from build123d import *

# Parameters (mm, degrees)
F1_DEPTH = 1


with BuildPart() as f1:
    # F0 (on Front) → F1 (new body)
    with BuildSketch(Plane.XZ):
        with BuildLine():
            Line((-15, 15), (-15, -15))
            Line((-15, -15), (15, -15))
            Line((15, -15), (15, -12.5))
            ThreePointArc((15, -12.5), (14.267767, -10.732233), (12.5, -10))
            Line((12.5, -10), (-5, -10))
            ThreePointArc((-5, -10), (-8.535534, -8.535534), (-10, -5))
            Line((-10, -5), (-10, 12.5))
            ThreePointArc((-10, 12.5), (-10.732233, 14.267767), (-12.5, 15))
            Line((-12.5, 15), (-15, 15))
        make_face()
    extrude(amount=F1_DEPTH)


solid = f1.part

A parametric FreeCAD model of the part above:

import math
import FreeCAD as App
import Part
import Sketcher
Q = App.Units.Quantity

doc = App.newDocument("Part")
body = doc.addObject("PartDesign::Body", "Body")

# Sketch on XZ plane
sketch1 = body.newObject("Sketcher::SketchObject", "Sketch")
sketch1.AttachmentSupport = (doc.getObject("XZ_Plane"), [""])
sketch1.MapMode = "FlatFace"
sketch1.addGeometry(Part.LineSegment(App.Vector(-15, 15, 0), App.Vector(-15, -15, 0)), False)
sketch1.addGeometry(Part.LineSegment(App.Vector(-15, -15, 0), App.Vector(15, -15, 0)), False)
sketch1.addGeometry(Part.LineSegment(App.Vector(15, -15, 0), App.Vector(15, -12.5, 0)), False)
sketch1.addGeometry(Part.ArcOfCircle(Part.Circle(App.Vector(12.5, -12.5, 0), App.Vector(0, 0, 1), 2.5), math.radians(-0.000004), math.radians(90.000004)), False)
sketch1.addGeometry(Part.LineSegment(App.Vector(12.5, -10, 0), App.Vector(-5, -10, 0)), False)
sketch1.addGeometry(Part.ArcOfCircle(Part.Circle(App.Vector(-5, -5, 0), App.Vector(0, 0, 1), 5), math.radians(179.999996), math.radians(270.000004)), False)
sketch1.addGeometry(Part.LineSegment(App.Vector(-10, -5, 0), App.Vector(-10, 12.5, 0)), False)
sketch1.addGeometry(Part.ArcOfCircle(Part.Circle(App.Vector(-12.5, 12.5, 0), App.Vector(0, 0, 1), 2.5), math.radians(-0.000004), math.radians(90.000004)), False)
sketch1.addGeometry(Part.LineSegment(App.Vector(-12.5, 15, 0), App.Vector(-15, 15, 0)), False)
sketch1.addConstraint(Sketcher.Constraint("Coincident", 0, 2, 1, 1))
sketch1.addConstraint(Sketcher.Constraint("Coincident", 1, 2, 2, 1))
sketch1.addConstraint(Sketcher.Constraint("Tangent", 2, 2, 3, 1))
sketch1.addConstraint(Sketcher.Constraint("Tangent", 3, 2, 4, 1))
sketch1.addConstraint(Sketcher.Constraint("Tangent", 4, 2, 5, 2))
sketch1.addConstraint(Sketcher.Constraint("Tangent", 5, 1, 6, 1))
sketch1.addConstraint(Sketcher.Constraint("Tangent", 6, 2, 7, 1))
sketch1.addConstraint(Sketcher.Constraint("Tangent", 7, 2, 8, 1))
sketch1.addConstraint(Sketcher.Constraint("Coincident", 8, 2, 0, 1))
sketch1.addConstraint(Sketcher.Constraint("Vertical", 0))
sketch1.addConstraint(Sketcher.Constraint("Horizontal", 1))
sketch1.addConstraint(Sketcher.Constraint("Vertical", 2))
sketch1.addConstraint(Sketcher.Constraint("Horizontal", 4))
sketch1.addConstraint(Sketcher.Constraint("Vertical", 6))
sketch1.addConstraint(Sketcher.Constraint("Horizontal", 8))
sketch1.addConstraint(Sketcher.Constraint("Equal", 3, 7))
sketch1.addConstraint(Sketcher.Constraint("Symmetric", 3, 3, 7, 3, -1, 1))
sketch1.addConstraint(Sketcher.Constraint("Symmetric", 1, 2, 8, 2, -1, 1))
sketch1.addConstraint(Sketcher.Constraint("Equal", 1, 0))
sketch1.addConstraint(Sketcher.Constraint("Radius", 5, Q("5 mm")))
sketch1.addConstraint(Sketcher.Constraint("Radius", 3, Q("2.5 mm")))
sketch1.addConstraint(Sketcher.Constraint("DistanceX", 1, 1, 1, 2, Q("30 mm")))
pad1 = body.newObject("PartDesign::Pad", "Pad")
pad1.Profile = sketch1
pad1.Length = 1

doc.recompute()
